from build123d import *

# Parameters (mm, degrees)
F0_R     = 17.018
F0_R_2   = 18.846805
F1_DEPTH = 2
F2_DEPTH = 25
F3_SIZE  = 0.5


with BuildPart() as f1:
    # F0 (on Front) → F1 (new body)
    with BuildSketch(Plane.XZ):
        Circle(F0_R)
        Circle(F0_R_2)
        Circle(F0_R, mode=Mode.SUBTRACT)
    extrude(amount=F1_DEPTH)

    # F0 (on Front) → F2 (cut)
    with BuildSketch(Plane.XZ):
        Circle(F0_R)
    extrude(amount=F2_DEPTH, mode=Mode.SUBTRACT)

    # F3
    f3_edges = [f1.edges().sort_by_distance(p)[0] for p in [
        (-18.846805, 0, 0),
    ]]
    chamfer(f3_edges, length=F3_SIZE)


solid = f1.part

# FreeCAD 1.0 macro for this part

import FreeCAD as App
import Part
import Sketcher

V = App.Vector
Q = App.Units.Quantity


def edges_at(feature, points):
    """Names of the edges that pass closest to the given points."""
    edges = feature.Shape.Edges
    near = lambda p: min(range(len(edges)), key=lambda i: edges[i].distToShape(Part.Vertex(*p))[0])
    return sorted({f"Edge{near(p) + 1}" for p in points})

doc = App.newDocument("Part")
body = doc.addObject("PartDesign::Body", "Body")

sketch1 = body.newObject("Sketcher::SketchObject", "Sketch")
sketch1.AttachmentSupport = (doc.getObject("XZ_Plane"), [""])
sketch1.MapMode = "FlatFace"
sketch1.addGeometry(Part.Circle(V(0, 0, 0), V(0, 0, 1), 18.846805), False)
sketch1.addGeometry(Part.Circle(V(0, 0, 0), V(0, 0, 1), 17.018), False)
sketch1.addConstraint(Sketcher.Constraint("Coincident", 0, 3, -1, 1))
sketch1.addConstraint(Sketcher.Constraint("Coincident", 1, 3, -1, 1))
sketch1.addConstraint(Sketcher.Constraint("Diameter", 1, Q("34.036 mm")))
sketch1.addConstraint(Sketcher.Constraint("Diameter", 0, Q("37.69361 mm")))
pad1 = body.newObject("PartDesign::Pad", "Pad")
pad1.Profile = sketch1
pad1.Length = 2

sketch2 = body.newObject("Sketcher::SketchObject", "Sketch001")
sketch2.AttachmentSupport = (doc.getObject("XZ_Plane"), [""])
sketch2.MapMode = "FlatFace"
sketch2.addGeometry(Part.Circle(V(0, 0, 0), V(0, 0, 1), 17.018), False)
sketch2.addConstraint(Sketcher.Constraint("Coincident", 0, 3, -1, 1))
sketch2.addConstraint(Sketcher.Constraint("Diameter", 0, Q("34.036 mm")))
pocket1 = body.newObject("PartDesign::Pocket", "Pocket")
pocket1.Profile = sketch2
pocket1.Length = 25
pocket1.Reversed = True
doc.recompute()

chamfer = body.newObject("PartDesign::Chamfer", "Chamfer")
chamfer.Base = (pocket1, edges_at(pocket1, [(-18.847, 0, 0)]))
chamfer.Size = 0.5

doc.recompute()
